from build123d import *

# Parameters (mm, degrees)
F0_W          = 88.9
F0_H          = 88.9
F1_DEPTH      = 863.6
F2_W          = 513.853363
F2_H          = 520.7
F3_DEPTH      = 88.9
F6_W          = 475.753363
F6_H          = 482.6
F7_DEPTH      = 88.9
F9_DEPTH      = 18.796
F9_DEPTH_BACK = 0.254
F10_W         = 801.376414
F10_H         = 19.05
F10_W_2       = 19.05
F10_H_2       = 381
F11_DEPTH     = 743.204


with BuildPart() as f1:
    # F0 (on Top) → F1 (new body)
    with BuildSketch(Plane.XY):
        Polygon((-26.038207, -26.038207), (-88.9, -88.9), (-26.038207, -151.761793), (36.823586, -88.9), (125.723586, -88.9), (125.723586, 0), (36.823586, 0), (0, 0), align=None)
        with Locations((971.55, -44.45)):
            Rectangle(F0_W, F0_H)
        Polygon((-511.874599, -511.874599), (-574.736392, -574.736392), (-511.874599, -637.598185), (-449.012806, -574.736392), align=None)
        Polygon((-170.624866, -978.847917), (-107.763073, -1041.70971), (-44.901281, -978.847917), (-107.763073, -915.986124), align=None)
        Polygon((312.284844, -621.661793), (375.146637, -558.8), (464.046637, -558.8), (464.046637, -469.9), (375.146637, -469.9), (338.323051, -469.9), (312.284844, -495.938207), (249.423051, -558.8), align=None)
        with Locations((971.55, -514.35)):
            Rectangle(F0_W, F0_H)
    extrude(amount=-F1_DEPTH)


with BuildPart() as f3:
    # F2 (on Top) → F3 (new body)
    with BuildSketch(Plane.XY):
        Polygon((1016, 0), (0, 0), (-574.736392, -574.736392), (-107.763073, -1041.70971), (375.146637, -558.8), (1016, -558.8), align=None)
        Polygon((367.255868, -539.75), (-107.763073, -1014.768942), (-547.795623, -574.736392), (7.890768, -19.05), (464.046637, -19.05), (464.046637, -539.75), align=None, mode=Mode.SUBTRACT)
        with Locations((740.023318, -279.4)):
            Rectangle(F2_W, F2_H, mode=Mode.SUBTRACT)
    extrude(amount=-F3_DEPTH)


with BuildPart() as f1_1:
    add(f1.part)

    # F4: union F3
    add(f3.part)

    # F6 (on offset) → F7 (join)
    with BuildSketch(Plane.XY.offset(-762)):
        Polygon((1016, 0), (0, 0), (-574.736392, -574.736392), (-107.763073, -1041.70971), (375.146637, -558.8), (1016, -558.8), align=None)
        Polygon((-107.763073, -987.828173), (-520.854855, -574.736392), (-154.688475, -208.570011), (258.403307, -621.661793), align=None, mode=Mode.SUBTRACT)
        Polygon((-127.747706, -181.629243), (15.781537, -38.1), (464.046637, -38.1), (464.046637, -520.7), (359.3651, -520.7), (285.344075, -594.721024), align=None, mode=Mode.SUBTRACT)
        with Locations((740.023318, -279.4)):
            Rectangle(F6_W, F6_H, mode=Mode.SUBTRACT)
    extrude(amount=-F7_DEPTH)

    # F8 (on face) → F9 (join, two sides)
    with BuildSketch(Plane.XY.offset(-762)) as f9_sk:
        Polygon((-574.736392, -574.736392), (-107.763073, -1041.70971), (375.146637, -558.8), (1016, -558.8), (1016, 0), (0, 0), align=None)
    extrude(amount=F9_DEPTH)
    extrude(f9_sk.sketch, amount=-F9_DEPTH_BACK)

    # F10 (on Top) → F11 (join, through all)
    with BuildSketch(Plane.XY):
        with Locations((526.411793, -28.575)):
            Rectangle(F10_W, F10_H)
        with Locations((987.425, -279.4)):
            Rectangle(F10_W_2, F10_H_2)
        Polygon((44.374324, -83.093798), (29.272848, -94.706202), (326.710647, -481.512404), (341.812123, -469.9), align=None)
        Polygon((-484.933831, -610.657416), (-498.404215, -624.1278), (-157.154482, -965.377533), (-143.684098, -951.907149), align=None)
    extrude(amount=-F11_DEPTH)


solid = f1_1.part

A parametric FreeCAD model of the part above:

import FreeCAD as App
import Part
import Sketcher
Q = App.Units.Quantity


def add_polygon(sketch, points):
    """Adds a closed chain of lines whose ends are joined by coincident constraints."""
    first, n = sketch.GeometryCount, len(points)
    for a, b in zip(points, points[1:] + points[:1]):
        sketch.addGeometry(Part.LineSegment(App.Vector(*a, 0), App.Vector(*b, 0)), False)
    for i in range(n):
        sketch.addConstraint(Sketcher.Constraint("Coincident", first + i, 2, first + (i + 1) % n, 1))

doc = App.newDocument("Part")
body = doc.addObject("PartDesign::Body", "Body")
body.AllowCompound = True

# Sketch on XY plane
sketch1 = doc.addObject("Sketcher::SketchObject", "Sketch")
body.addObject(sketch1)
sketch1.AttachmentSupport = (doc.XY_Plane, [""])
sketch1.MapMode = "FlatFace"
add_polygon(sketch1, [(-88.9, -88.9), (-26.038207, -151.761793), (36.823586, -88.9), (125.723586, -88.9), (125.723586, 0), (0, 0)])  # lines 0-5
add_polygon(sketch1, [(927.1, 0), (927.1, -88.9), (1016, -88.9), (1016, 0)])  # lines 6-9
add_polygon(sketch1, [(-511.874599, -511.874599), (-574.736392, -574.736392), (-511.874599, -637.598185), (-449.012806, -574.736392)])  # lines 10-13
add_polygon(sketch1, [(-170.624866, -978.847917), (-107.763073, -1041.70971), (-44.901281, -978.847917), (-107.763073, -915.986124)])  # lines 14-17
add_polygon(sketch1, [(312.284844, -621.661793), (375.146637, -558.8), (464.046637, -558.8), (464.046637, -469.9), (338.323051, -469.9), (249.423051, -558.8)])  # lines 18-23
add_polygon(sketch1, [(927.1, -469.9), (927.1, -558.8), (1016, -558.8), (1016, -469.9)])  # lines 24-27
sketch1.addConstraint([
    Sketcher.Constraint("Horizontal", 2),
    Sketcher.Constraint("Vertical", 3),
    Sketcher.Constraint("Horizontal", 4),
    Sketcher.Constraint("Vertical", 6),
    Sketcher.Constraint("Horizontal", 7),
    Sketcher.Constraint("Vertical", 8),
    Sketcher.Constraint("Horizontal", 9),
    Sketcher.Constraint("Horizontal", 19),
    Sketcher.Constraint("Vertical", 20),
    Sketcher.Constraint("Horizontal", 21),
    Sketcher.Constraint("Vertical", 24),
    Sketcher.Constraint("Horizontal", 25),
    Sketcher.Constraint("Vertical", 26),
    Sketcher.Constraint("Horizontal", 27),
    Sketcher.Constraint("Coincident", 4, 2, -1, 1),
    Sketcher.Constraint("PointOnObject", 8, 2, -1),
    Sketcher.Constraint("Perpendicular", 0, 1),
    Sketcher.Constraint("Parallel", 1, 5),
    Sketcher.Constraint("Parallel", 5, 10),
    Sketcher.Constraint("Perpendicular", 10, 11),
    Sketcher.Constraint("Perpendicular", 11, 12),
    Sketcher.Constraint("Perpendicular", 12, 13),
    Sketcher.Constraint("Parallel", 13, 14),
    Sketcher.Constraint("Perpendicular", 14, 15),
    Sketcher.Constraint("Perpendicular", 15, 16),
    Sketcher.Constraint("Perpendicular", 16, 17),
    Sketcher.Constraint("Parallel", 17, 18),
    Sketcher.Constraint("Parallel", 18, 22),
    Sketcher.Constraint("Perpendicular", 22, 23),
    Sketcher.Constraint("Horizontal", 2, 2, 5, 2),
    Sketcher.Constraint("Horizontal", 5, 2, 6, 2),
    Sketcher.Constraint("Horizontal", 10, 2, 12, 2),
    Sketcher.Constraint("Horizontal", 15, 2, 17, 2),
    Sketcher.Constraint("Horizontal", 19, 2, 22, 2),
    Sketcher.Constraint("Horizontal", 22, 2, 24, 2),
    Sketcher.Constraint("Horizontal", 21, 2, 26, 2),
    Sketcher.Constraint("Vertical", 11, 2, 13, 2),
    Sketcher.Constraint("Vertical", 9, 2, 24, 2),
    Sketcher.Constraint("Vertical", 8, 2, 25, 2),
    Sketcher.Constraint("Equal", 2, 7),
    Sketcher.Constraint("Equal", 9, 19),
    Sketcher.Constraint("Equal", 4, 21),
    Sketcher.Constraint("Equal", 27, 3),
    Sketcher.Constraint("Equal", 8, 20),
    Sketcher.Constraint("Equal", 1, 10),
    Sketcher.Constraint("Equal", 13, 14),
    Sketcher.Constraint("DistanceX", 2, 1, 2, 2, Q("3.5 in")),
    Sketcher.Constraint("DistanceX", -1, 1, 7, 2, Q("40 in")),
    Sketcher.Constraint("DistanceY", 18, 2, -1, 1, Q("22 in")),
    Sketcher.Constraint("Distance", 0, Q("3.5 in")),
    Sketcher.Constraint("DistanceX", 11, 2, -1, 1, Q("511.874599 mm")),
    Sketcher.Constraint("DistanceY", 13, 2, -1, 1, Q("511.874599 mm")),
    Sketcher.Constraint("DistanceY", 14, 2, -1, 1, Q("1041.70971 mm")),
    Sketcher.Constraint("DistanceX", 15, 2, -1, 1, Q("44.901281 mm")),
    Sketcher.Constraint("DistanceX", -1, 1, 21, 2, Q("338.323051 mm")),
])
pad1 = doc.addObject("PartDesign::Pad", "Pad")
body.addObject(pad1)
pad1.Profile = sketch1
pad1.Length = Q("34 in")
pad1.Reversed = True
body2 = doc.addObject("PartDesign::Body", "Body001")

# Sketch on XY plane
sketch2 = doc.addObject("Sketcher::SketchObject", "Sketch001")
body2.addObject(sketch2)
sketch2.AttachmentSupport = (doc.getObject("XY_Plane001"), [""])
sketch2.MapMode = "FlatFace"
add_polygon(sketch2, [(1016, 0), (0, 0), (-574.736392, -574.736392), (-107.763073, -1041.70971), (375.146637, -558.8), (1016, -558.8)])  # lines 0-5
add_polygon(sketch2, [(464.046637, -539.75), (367.255868, -539.75), (-107.763073, -1014.768942), (-547.795623, -574.736392), (7.890768, -19.05), (464.046637, -19.05)])  # lines 6-11
add_polygon(sketch2, [(996.949999, -539.75), (483.096636, -539.75), (483.096636, -19.05), (996.949999, -19.05)])  # lines 12-15
sketch2.addConstraint([
    Sketcher.Constraint("Horizontal", 0),
    Sketcher.Constraint("Horizontal", 4),
    Sketcher.Constraint("Vertical", 5),
    Sketcher.Constraint("Horizontal", 6),
    Sketcher.Constraint("Horizontal", 10),
    Sketcher.Constraint("Vertical", 11),
    Sketcher.Constraint("Horizontal", 12),
    Sketcher.Constraint("Vertical", 13),
    Sketcher.Constraint("Horizontal", 14),
    Sketcher.Constraint("Vertical", 15),
    Sketcher.Constraint("Coincident", 0, 2, -1, 1),
    Sketcher.Constraint("Perpendicular", 1, 2),
    Sketcher.Constraint("Perpendicular", 2, 3),
    Sketcher.Constraint("Parallel", 3, 7),
    Sketcher.Constraint("Perpendicular", 7, 8),
    Sketcher.Constraint("Perpendicular", 8, 9),
    Sketcher.Constraint("Horizontal", 1, 2, 8, 2),
    Sketcher.Constraint("Horizontal", 11, 2, 12, 2),
    Sketcher.Constraint("Horizontal", 10, 2, 13, 2),
    Sketcher.Constraint("Vertical", 2, 2, 7, 2),
    Sketcher.Constraint("DistanceX", 0, 2, 0, 1, Q("40 in")),
    Sketcher.Constraint("DistanceY", 5, 1, 5, 2, Q("22 in")),
    Sketcher.Constraint("Distance", 1, Q("32 in")),
    Sketcher.Constraint("Distance", 2, Q("26 in")),
    Sketcher.Constraint("DistanceY", 11, 2, 11, 1, Q("20.5 in")),
    Sketcher.Constraint("Angle", 1, Q("-135 deg")),
    Sketcher.Constraint("Distance", 8, Q("24.5 in")),
    Sketcher.Constraint("DistanceX", 3, 2, 10, 2, Q("3.5 in")),
    Sketcher.Constraint("DistanceY", 6, 2, -1, 1, Q("21.25 in")),
    Sketcher.Constraint("DistanceX", -1, 1, 14, 2, Q("39.25 in")),
    Sketcher.Constraint("DistanceX", 11, 2, 12, 2, Q("0.75 in")),
])
pad2 = doc.addObject("PartDesign::Pad", "Pad001")
body2.addObject(pad2)
pad2.Profile = sketch2
pad2.Length = Q("3.5 in")
pad2.Reversed = True
doc.recompute()

boolean = doc.addObject("PartDesign::Boolean", "Boolean")
body.addObject(boolean)
boolean.Type = "Fuse"
boolean.addObjects([body2])

# Sketch on XY plane
sketch3 = doc.addObject("Sketcher::SketchObject", "Sketch002")
body.addObject(sketch3)
sketch3.AttachmentSupport = (doc.XY_Plane, [""])
sketch3.MapMode = "FlatFace"
sketch3.AttachmentOffset = App.Placement(App.Vector(0, 0, -30 * 25.4), App.Rotation())
add_polygon(sketch3, [(1016, 0), (0, 0), (-574.736392, -574.736392), (-107.763073, -1041.70971), (375.146637, -558.8), (1016, -558.8)])  # lines 0-5
add_polygon(sketch3, [(258.403307, -621.661793), (-107.763073, -987.828173), (-520.854855, -574.736392), (-154.688475, -208.570011)])  # lines 6-9
add_polygon(sketch3, [(285.344075, -594.721024), (-127.747706, -181.629243), (15.781537, -38.1), (464.046637, -38.1), (464.046637, -520.7), (359.3651, -520.7)])  # lines 10-15
add_polygon(sketch3, [(977.9, -520.7), (502.146636, -520.7), (502.146636, -38.1), (977.9, -38.1)])  # lines 16-19
sketch3.addConstraint([
    Sketcher.Constraint("Horizontal", 0),
    Sketcher.Constraint("Horizontal", 4),
    Sketcher.Constraint("Vertical", 5),
    Sketcher.Constraint("Horizontal", 12),
    Sketcher.Constraint("Vertical", 13),
    Sketcher.Constraint("Horizontal", 14),
    Sketcher.Constraint("Horizontal", 16),
    Sketcher.Constraint("Vertical", 17),
    Sketcher.Constraint("Horizontal", 18),
    Sketcher.Constraint("Vertical", 19),
    Sketcher.Constraint("Coincident", 0, 2, -1, 1),
    Sketcher.Constraint("Perpendicular", 1, 2),
    Sketcher.Constraint("Perpendicular", 2, 3),
    Sketcher.Constraint("Parallel", 3, 6),
    Sketcher.Constraint("Perpendicular", 6, 7),
    Sketcher.Constraint("Perpendicular", 7, 8),
    Sketcher.Constraint("Perpendicular", 8, 9),
    Sketcher.Constraint("Parallel", 9, 10),
    Sketcher.Constraint("Perpendicular", 10, 11),
    Sketcher.Constraint("Parallel", 11, 15),
    Sketcher.Constraint("Horizontal", 1, 2, 7, 2),
    Sketcher.Constraint("Horizontal", 14, 2, 16, 2),
    Sketcher.Constraint("Horizontal", 12, 2, 17, 2),
    Sketcher.Constraint("Vertical", 2, 2, 6, 2),
    Sketcher.Constraint("Equal", 9, 10),
    Sketcher.Constraint("DistanceX", 0, 2, 0, 1, Q("40 in")),
    Sketcher.Constraint("DistanceY", 5, 1, 5, 2, Q("22 in")),
    Sketcher.Constraint("DistanceY", 13, 2, 13, 1, Q("19 in")),
    Sketcher.Constraint("Distance", 1, Q("32 in")),
    Sketcher.Constraint("Distance", 2, Q("26 in")),
    Sketcher.Constraint("Distance", 7, Q("23 in")),
    Sketcher.Constraint("Angle", 1, Q("-135 deg")),
    Sketcher.Constraint("DistanceX", 3, 2, 16, 2, Q("5 in")),
    Sketcher.Constraint("DistanceY", 11, 2, -1, 1, Q("1.5 in")),
    Sketcher.Constraint("DistanceX", -1, 1, 18, 2, Q("38.5 in")),
    Sketcher.Constraint("DistanceX", 3, 2, 12, 2, Q("3.5 in")),
    Sketcher.Constraint("DistanceX", 12, 1, 12, 2, Q("448.2651 mm")),
    Sketcher.Constraint("Distance", 6, Q("517.837461 mm")),
    Sketcher.Constraint("DistanceX", 8, 2, 10, 2, Q("26.940769 mm")),
])
pad3 = doc.addObject("PartDesign::Pad", "Pad002")
body.addObject(pad3)
pad3.Profile = sketch3
pad3.Length = Q("3.5 in")
pad3.Reversed = True

# Sketch on XY plane
sketch4 = doc.addObject("Sketcher::SketchObject", "Sketch003")
body.addObject(sketch4)
sketch4.AttachmentSupport = (doc.XY_Plane, [""])
sketch4.MapMode = "FlatFace"
sketch4.AttachmentOffset = App.Placement(App.Vector(0, 0, -30 * 25.4), App.Rotation())
add_polygon(sketch4, [(-574.736392, -574.736392), (-107.763073, -1041.70971), (375.146637, -558.8), (1016, -558.8), (1016, 0), (0, 0)])  # lines 0-5
sketch4.addConstraint([
    Sketcher.Constraint("Horizontal", 2),
    Sketcher.Constraint("Vertical", 3),
    Sketcher.Constraint("Horizontal", 4),
    Sketcher.Constraint("Coincident", 4, 2, -1, 1),
    Sketcher.Constraint("Perpendicular", 0, 1),
    Sketcher.Constraint("Parallel", 1, 5),
    Sketcher.Constraint("DistanceX", 4, 2, 4, 1, Q("40 in")),
    Sketcher.Constraint("DistanceY", 3, 1, 3, 2, Q("22 in")),
    Sketcher.Constraint("Distance", 0, Q("26 in")),
    Sketcher.Constraint("Distance", 5, Q("32 in")),
    Sketcher.Constraint("Angle", 0, Q("-45 deg")),
])
pad4 = doc.addObject("PartDesign::Pad", "Pad003")
body.addObject(pad4)
pad4.Profile = sketch4
pad4.Type = "TwoLengths"
pad4.Length = Q("0.74 in")
pad4.Length2 = Q("0.01 in")

# Sketch on XY plane
sketch5 = doc.addObject("Sketcher::SketchObject", "Sketch004")
body.addObject(sketch5)
sketch5.AttachmentSupport = (doc.XY_Plane, [""])
sketch5.MapMode = "FlatFace"
add_polygon(sketch5, [(125.723586, -19.05), (125.723586, -38.1), (927.1, -38.1), (927.1, -19.05)])  # lines 0-3
add_polygon(sketch5, [(977.9, -88.9), (977.9, -469.9), (996.95, -469.9), (996.95, -88.9)])  # lines 4-7
add_polygon(sketch5, [(44.374324, -83.093798), (29.272848, -94.706202), (326.710647, -481.512404), (341.812123, -469.9)])  # lines 8-11
add_polygon(sketch5, [(-484.933831, -610.657416), (-498.404215, -624.1278), (-157.154482, -965.377533), (-143.684098, -951.907149)])  # lines 12-15
sketch5.addConstraint([
    Sketcher.Constraint("Vertical", 0),
    Sketcher.Constraint("Horizontal", 1),
    Sketcher.Constraint("Vertical", 2),
    Sketcher.Constraint("Horizontal", 3),
    Sketcher.Constraint("Vertical", 4),
    Sketcher.Constraint("Horizontal", 5),
    Sketcher.Constraint("Vertical", 6),
    Sketcher.Constraint("Horizontal", 7),
    Sketcher.Constraint("Perpendicular", 8, 9),
    Sketcher.Constraint("Perpendicular", 9, 10),
    Sketcher.Constraint("Perpendicular", 10, 11),
    Sketcher.Constraint("Perpendicular", 12, 13),
    Sketcher.Constraint("Perpendicular", 13, 14),
    Sketcher.Constraint("Perpendicular", 14, 15),
    Sketcher.Constraint("Horizontal", 5, 2, 10, 2),
    Sketcher.Constraint("Equal", 7, 0),
    Sketcher.Constraint("Equal", 10, 12),
    Sketcher.Constraint("DistanceY", 4, 2, 4, 1, Q("15 in")),
    Sketcher.Constraint("Distance", 13, Q("19 in")),
    Sketcher.Constraint("Angle", 12, Q("-135 deg")),
    Sketcher.Constraint("DistanceX", 1, 2, 4, 2, Q("2 in")),
    Sketcher.Constraint("DistanceY", 4, 2, 1, 2, Q("17 in")),
    Sketcher.Constraint("DistanceX", 5, 1, 5, 2, Q("0.75 in")),
    Sketcher.Constraint("DistanceY", 0, 2, -1, 1, Q("1.5 in")),
    Sketcher.Constraint("DistanceX", -1, 1, 1, 2, Q("36.5 in")),
    Sketcher.Constraint("Distance", 8, Q("0.75 in")),
    Sketcher.Constraint("DistanceY", 11, 2, -1, 1, Q("83.093798 mm")),
    Sketcher.Constraint("DistanceY", 12, 2, -1, 1, Q("624.1278 mm")),
    Sketcher.Constraint("DistanceX", 14, 2, -1, 1, Q("143.684098 mm")),
    Sketcher.Constraint("DistanceY", 8, 2, 7, 2, Q("5.806202 mm")),
    Sketcher.Constraint("DistanceX", 12, 2, 0, 2, Q("624.127801 mm")),
    Sketcher.Constraint("DistanceX", -1, 1, 8, 2, Q("29.272848 mm")),
])
pad5 = doc.addObject("PartDesign::Pad", "Pad004")
body.addObject(pad5)
pad5.Profile = sketch5
pad5.Type = "UpToLast"
pad5.Reversed = True

doc.recompute()
